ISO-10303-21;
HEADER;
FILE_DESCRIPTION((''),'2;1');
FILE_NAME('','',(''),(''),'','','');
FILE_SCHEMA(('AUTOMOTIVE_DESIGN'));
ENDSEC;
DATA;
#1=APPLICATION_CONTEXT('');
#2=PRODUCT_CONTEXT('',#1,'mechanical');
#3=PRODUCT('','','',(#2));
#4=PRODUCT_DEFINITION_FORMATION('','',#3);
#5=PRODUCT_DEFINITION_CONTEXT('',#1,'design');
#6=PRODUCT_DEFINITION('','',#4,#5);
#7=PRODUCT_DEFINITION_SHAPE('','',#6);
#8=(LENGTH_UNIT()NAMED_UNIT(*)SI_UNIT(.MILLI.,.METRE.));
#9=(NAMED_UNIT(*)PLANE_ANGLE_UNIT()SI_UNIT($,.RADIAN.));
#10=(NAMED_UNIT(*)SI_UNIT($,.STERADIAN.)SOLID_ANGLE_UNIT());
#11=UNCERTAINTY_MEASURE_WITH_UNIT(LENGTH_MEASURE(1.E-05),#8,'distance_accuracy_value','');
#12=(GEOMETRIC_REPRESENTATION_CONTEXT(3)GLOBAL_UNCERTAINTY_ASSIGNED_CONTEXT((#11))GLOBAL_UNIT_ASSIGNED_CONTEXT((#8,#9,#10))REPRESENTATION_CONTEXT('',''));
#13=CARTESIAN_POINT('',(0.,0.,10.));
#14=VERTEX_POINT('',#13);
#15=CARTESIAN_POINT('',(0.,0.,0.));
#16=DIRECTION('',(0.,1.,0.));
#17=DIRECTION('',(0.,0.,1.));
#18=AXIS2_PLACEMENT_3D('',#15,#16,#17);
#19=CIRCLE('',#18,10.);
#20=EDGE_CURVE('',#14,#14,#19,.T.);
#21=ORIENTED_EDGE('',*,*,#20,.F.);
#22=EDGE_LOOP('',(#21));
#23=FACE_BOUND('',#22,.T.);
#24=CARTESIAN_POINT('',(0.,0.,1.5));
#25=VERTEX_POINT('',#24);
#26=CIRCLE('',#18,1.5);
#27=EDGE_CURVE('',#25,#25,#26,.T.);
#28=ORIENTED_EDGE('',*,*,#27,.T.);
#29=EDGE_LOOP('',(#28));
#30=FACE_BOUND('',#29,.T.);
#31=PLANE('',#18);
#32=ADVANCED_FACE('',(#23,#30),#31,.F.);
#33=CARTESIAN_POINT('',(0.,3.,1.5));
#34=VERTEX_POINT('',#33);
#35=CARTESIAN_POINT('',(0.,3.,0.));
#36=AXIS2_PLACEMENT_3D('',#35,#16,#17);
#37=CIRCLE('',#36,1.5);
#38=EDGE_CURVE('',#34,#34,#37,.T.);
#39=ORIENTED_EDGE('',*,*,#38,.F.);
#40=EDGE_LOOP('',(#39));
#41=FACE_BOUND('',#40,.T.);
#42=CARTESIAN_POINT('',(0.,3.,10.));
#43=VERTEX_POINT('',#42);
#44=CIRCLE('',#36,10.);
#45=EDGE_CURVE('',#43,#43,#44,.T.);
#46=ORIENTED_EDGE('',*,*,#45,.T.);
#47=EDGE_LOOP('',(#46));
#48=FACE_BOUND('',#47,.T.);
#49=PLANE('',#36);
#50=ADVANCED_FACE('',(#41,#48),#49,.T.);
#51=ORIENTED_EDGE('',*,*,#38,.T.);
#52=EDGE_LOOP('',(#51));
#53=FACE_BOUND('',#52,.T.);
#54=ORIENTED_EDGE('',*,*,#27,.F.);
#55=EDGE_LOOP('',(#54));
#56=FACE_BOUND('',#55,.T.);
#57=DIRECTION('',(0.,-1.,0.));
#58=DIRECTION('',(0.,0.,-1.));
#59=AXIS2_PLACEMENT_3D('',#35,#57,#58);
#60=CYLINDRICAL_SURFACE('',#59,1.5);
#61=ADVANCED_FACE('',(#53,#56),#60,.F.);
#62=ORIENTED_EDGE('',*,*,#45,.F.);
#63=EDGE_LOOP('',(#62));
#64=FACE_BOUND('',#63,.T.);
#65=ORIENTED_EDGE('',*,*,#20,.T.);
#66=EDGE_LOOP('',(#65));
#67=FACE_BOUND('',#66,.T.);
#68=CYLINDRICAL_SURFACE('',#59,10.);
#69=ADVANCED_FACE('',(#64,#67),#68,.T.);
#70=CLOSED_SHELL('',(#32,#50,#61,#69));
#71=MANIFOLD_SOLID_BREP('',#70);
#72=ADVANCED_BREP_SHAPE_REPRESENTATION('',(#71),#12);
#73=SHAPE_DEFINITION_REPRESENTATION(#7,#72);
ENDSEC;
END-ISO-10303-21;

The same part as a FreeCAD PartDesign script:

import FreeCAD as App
import Part
import Sketcher
from FreeCAD import Vector
Q = App.Units.Quantity

doc = App.newDocument("Part")
body = doc.addObject("PartDesign::Body", "Body")

sketch1 = body.newObject("Sketcher::SketchObject", "Sketch")
sketch1.AttachmentSupport = (doc.getObject("XZ_Plane"), [""])
sketch1.MapMode = "FlatFace"
sketch1.addGeometry(Part.Circle(Vector(0, 0, 0), Vector(0, 0, 1), 10), False)
sketch1.addGeometry(Part.Circle(Vector(0, 0, 0), Vector(0, 0, 1), 1.5), False)
sketch1.addConstraint(Sketcher.Constraint("Coincident", 0, 3, -1, 1))
sketch1.addConstraint(Sketcher.Constraint("Coincident", 1, 3, -1, 1))
sketch1.addConstraint(Sketcher.Constraint("Diameter", 0, Q("20 mm")))
sketch1.addConstraint(Sketcher.Constraint("Diameter", 1, Q("3 mm")))
pad1 = body.newObject("PartDesign::Pad", "Pad")
pad1.Profile = sketch1
pad1.Length = 3
pad1.Reversed = True

doc.recompute()
